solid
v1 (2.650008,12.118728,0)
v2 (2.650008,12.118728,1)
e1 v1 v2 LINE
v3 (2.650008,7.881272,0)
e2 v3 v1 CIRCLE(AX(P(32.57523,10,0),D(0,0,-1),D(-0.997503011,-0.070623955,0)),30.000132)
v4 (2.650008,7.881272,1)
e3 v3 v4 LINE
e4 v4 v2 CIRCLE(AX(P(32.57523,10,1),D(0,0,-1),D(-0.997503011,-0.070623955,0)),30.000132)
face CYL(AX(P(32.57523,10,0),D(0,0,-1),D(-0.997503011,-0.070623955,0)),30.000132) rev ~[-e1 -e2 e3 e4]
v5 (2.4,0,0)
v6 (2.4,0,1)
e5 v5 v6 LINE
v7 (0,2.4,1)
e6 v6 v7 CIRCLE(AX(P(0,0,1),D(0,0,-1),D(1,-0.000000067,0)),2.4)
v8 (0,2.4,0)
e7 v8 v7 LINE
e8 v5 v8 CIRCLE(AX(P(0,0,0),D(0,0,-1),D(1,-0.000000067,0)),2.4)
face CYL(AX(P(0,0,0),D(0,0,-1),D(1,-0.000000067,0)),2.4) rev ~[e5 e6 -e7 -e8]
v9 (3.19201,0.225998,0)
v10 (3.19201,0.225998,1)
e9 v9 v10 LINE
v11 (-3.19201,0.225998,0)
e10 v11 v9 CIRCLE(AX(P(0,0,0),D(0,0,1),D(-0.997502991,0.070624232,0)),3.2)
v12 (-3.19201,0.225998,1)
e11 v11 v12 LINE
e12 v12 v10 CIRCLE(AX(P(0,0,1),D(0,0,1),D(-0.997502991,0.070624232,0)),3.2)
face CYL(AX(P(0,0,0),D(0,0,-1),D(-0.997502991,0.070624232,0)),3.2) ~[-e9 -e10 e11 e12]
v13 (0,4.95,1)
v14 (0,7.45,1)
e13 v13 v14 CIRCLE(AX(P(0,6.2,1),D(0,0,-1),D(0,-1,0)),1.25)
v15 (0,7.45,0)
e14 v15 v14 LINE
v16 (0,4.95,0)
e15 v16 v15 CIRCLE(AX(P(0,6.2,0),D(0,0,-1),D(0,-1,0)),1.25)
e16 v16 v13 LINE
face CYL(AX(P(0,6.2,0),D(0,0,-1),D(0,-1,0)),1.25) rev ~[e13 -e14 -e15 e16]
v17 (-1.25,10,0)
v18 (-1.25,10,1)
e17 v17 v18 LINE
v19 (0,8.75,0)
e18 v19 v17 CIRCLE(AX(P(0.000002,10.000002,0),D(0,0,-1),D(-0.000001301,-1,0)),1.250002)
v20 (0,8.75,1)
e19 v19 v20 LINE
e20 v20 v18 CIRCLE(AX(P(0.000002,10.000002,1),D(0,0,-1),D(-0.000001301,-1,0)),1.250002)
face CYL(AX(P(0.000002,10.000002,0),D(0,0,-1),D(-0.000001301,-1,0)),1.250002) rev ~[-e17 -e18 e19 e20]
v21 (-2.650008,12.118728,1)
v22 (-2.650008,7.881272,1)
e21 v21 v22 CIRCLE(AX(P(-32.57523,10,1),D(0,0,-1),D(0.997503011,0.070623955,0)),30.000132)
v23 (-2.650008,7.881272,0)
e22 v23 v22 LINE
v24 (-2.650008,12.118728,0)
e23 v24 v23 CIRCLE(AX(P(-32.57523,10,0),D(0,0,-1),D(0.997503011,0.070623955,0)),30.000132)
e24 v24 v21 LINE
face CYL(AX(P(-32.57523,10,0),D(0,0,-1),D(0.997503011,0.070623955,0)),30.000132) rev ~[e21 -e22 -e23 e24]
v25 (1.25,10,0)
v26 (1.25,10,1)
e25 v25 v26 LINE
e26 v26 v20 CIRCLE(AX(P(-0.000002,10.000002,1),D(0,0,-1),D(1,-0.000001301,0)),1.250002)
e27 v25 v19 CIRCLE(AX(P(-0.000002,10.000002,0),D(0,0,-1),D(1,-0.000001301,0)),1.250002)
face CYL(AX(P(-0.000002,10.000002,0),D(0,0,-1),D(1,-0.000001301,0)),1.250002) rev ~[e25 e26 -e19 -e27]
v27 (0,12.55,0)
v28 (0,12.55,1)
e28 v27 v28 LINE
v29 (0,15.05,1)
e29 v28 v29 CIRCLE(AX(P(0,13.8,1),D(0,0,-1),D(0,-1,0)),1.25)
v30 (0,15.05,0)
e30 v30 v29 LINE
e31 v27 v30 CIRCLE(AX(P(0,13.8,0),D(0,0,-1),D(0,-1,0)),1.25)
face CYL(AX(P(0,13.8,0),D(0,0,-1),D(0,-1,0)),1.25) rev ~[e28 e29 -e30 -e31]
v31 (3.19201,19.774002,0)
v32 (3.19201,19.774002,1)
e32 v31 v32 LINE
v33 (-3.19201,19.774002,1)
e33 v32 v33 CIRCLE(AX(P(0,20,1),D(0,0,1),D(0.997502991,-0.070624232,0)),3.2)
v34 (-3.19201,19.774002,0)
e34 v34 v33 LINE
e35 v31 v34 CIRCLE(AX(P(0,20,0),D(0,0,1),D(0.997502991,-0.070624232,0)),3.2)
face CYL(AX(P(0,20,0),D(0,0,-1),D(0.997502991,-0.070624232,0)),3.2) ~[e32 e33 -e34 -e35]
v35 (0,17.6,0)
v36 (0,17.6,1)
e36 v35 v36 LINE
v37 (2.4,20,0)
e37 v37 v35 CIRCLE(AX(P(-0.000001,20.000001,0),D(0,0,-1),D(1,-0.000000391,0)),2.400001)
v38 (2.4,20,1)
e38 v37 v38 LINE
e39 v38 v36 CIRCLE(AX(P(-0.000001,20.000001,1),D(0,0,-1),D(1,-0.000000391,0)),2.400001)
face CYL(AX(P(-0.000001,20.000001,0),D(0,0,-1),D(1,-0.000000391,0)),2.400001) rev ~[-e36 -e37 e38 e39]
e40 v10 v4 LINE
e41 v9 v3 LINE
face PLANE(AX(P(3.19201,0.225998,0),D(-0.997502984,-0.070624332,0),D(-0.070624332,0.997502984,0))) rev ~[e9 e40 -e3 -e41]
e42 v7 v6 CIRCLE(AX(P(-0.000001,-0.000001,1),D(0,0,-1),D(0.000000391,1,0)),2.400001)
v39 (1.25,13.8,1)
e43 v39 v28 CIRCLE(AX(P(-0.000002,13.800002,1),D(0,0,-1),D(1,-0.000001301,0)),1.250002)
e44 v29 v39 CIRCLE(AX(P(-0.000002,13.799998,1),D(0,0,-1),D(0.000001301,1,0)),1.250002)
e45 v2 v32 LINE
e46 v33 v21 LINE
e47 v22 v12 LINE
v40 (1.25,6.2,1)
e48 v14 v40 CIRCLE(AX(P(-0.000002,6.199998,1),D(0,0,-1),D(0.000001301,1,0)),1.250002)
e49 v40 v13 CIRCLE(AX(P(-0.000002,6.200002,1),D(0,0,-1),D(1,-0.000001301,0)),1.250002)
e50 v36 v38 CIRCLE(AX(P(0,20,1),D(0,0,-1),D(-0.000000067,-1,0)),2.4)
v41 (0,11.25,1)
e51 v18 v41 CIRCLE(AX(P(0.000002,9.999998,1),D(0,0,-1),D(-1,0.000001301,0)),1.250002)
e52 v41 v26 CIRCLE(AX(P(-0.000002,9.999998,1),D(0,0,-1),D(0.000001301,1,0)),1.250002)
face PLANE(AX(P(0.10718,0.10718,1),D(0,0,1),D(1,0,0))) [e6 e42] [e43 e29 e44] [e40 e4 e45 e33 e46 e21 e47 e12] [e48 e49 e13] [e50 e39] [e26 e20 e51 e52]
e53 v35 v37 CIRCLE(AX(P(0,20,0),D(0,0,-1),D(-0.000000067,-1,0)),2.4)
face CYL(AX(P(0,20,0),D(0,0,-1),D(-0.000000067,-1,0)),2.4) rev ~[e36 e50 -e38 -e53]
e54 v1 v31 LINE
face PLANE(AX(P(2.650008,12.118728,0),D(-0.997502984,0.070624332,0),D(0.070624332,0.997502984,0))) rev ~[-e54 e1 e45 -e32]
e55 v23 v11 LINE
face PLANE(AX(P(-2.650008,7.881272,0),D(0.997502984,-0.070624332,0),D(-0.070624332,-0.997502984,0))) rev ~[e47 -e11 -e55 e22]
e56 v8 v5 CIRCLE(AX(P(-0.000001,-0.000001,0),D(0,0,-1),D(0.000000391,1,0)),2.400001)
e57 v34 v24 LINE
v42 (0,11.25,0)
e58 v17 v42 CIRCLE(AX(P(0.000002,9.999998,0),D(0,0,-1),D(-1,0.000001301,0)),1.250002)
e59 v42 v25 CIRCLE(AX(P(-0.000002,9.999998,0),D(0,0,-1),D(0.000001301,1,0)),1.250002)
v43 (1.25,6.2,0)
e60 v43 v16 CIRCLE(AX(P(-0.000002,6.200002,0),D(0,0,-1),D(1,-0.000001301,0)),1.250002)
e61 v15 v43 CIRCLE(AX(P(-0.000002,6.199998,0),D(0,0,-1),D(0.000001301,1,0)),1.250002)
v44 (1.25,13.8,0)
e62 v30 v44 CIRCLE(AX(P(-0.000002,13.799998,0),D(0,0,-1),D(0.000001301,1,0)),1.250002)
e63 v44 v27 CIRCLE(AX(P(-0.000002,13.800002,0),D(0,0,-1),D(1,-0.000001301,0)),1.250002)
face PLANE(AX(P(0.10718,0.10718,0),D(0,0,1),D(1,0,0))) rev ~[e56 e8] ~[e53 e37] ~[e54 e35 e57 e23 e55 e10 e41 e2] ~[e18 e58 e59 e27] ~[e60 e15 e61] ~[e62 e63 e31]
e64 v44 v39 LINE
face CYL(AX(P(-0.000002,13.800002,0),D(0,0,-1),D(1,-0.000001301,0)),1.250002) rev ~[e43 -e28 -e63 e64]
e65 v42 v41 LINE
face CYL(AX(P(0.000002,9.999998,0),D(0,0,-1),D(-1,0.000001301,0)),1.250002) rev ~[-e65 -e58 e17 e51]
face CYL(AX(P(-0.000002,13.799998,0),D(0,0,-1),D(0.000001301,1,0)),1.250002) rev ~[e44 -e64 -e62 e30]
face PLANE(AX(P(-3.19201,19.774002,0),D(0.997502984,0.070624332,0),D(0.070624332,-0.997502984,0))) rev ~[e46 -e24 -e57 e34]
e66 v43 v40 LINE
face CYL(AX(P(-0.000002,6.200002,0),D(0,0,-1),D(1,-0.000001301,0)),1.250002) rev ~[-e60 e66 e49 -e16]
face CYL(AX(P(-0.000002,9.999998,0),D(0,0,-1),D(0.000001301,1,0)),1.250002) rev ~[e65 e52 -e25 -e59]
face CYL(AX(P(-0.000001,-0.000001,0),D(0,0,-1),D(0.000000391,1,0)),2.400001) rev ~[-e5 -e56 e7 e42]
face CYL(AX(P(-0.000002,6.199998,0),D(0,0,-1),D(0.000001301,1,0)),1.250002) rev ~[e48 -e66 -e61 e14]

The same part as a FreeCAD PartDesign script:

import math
import FreeCAD as App
import Part
import Sketcher
Q = App.Units.Quantity

doc = App.newDocument("Part")
params = doc.addObject("Spreadsheet::Sheet", "Params")
for row, (alias, value) in enumerate([
    ("sketch1_radius", "3.2 mm"),
    ("sketch1_radius2", "2.4 mm"),
    ("sketch1_radius3", "1.250002 mm"),
    ("pad1_length", "1 mm"),
], start=1):
    params.set(f"A{row}", alias)
    params.set(f"B{row}", "=" + value)
    params.setAlias(f"B{row}", alias)

body = doc.addObject("PartDesign::Body", "Body")

# Sketch on XY plane
sketch1 = body.newObject("Sketcher::SketchObject", "Sketch")
sketch1.AttachmentSupport = (doc.getObject("XY_Plane"), [""])
sketch1.MapMode = "FlatFace"
sketch1.addGeometry([
    Part.LineSegment(App.Vector(-2.7, 7.9, 0), App.Vector(-3.2, 0.2, 0)),  # 0
    Part.ArcOfCircle(Part.Circle(App.Vector(0, 0, 0), App.Vector(0, 0, 1), 3.2), math.radians(176), math.radians(364)),  # 1
    Part.LineSegment(App.Vector(3.2, 0.2, 0), App.Vector(2.7, 7.9, 0)),  # 2
    Part.ArcOfCircle(Part.Circle(App.Vector(32.6, 10, 0), App.Vector(0, 0, 1), 30), math.radians(175.95), math.radians(184.05)),  # 3
    Part.LineSegment(App.Vector(2.7, 12.1, 0), App.Vector(3.2, 19.8, 0)),  # 4
    Part.ArcOfCircle(Part.Circle(App.Vector(0, 20, 0), App.Vector(0, 0, 1), 3.2), math.radians(-4), math.radians(184)),  # 5
    Part.LineSegment(App.Vector(-3.2, 19.8, 0), App.Vector(-2.7, 12.1, 0)),  # 6
    Part.ArcOfCircle(Part.Circle(App.Vector(-32.6, 10, 0), App.Vector(0, 0, 1), 30), math.radians(-4.05), math.radians(4.05)),  # 7
    Part.ArcOfCircle(Part.Circle(App.Vector(0, 6.2, 0), App.Vector(0, 0, 1), 1.3), math.radians(0), math.radians(90)),  # 8
    Part.ArcOfCircle(Part.Circle(App.Vector(0, 6.2, 0), App.Vector(0, 0, 1), 1.3), math.radians(-90), math.radians(0)),  # 9
    Part.ArcOfCircle(Part.Circle(App.Vector(0, 6.2, 0), App.Vector(0, 0, 1), 1.2), math.radians(90), math.radians(270)),  # 10
    Part.ArcOfCircle(Part.Circle(App.Vector(0, 0, 0), App.Vector(0, 0, 1), 2.4), math.radians(90), math.radians(360)),  # 11
    Part.ArcOfCircle(Part.Circle(App.Vector(0, 0, 0), App.Vector(0, 0, 1), 2.4), math.radians(0), math.radians(90)),  # 12
    Part.ArcOfCircle(Part.Circle(App.Vector(0, 10, 0), App.Vector(0, 0, 1), 1.3), math.radians(0), math.radians(90)),  # 13
    Part.ArcOfCircle(Part.Circle(App.Vector(0, 10, 0), App.Vector(0, 0, 1), 1.3), math.radians(-90), math.radians(0)),  # 14
    Part.ArcOfCircle(Part.Circle(App.Vector(0, 10, 0), App.Vector(0, 0, 1), 1.3), math.radians(-180), math.radians(-90)),  # 15
    Part.ArcOfCircle(Part.Circle(App.Vector(0, 10, 0), App.Vector(0, 0, 1), 1.3), math.radians(90), math.radians(180)),  # 16
    Part.ArcOfCircle(Part.Circle(App.Vector(0, 13.8, 0), App.Vector(0, 0, 1), 1.3), math.radians(0), math.radians(90)),  # 17
    Part.ArcOfCircle(Part.Circle(App.Vector(0, 13.8, 0), App.Vector(0, 0, 1), 1.3), math.radians(-90), math.radians(0)),  # 18
    Part.ArcOfCircle(Part.Circle(App.Vector(0, 13.8, 0), App.Vector(0, 0, 1), 1.2), math.radians(90), math.radians(270)),  # 19
    Part.ArcOfCircle(Part.Circle(App.Vector(0, 20, 0), App.Vector(0, 0, 1), 2.4), math.radians(0), math.radians(270)),  # 20
    Part.ArcOfCircle(Part.Circle(App.Vector(0, 20, 0), App.Vector(0, 0, 1), 2.4), math.radians(-90), math.radians(0)),  # 21
], False)
sketch1.addConstraint([
    Sketcher.Constraint("Tangent", 0, 2, 1, 1),
    Sketcher.Constraint("Tangent", 1, 2, 2, 1),
    Sketcher.Constraint("Tangent", 2, 2, 3, 2),
    Sketcher.Constraint("Tangent", 3, 1, 4, 1),
    Sketcher.Constraint("Tangent", 4, 2, 5, 1),
    Sketcher.Constraint("Tangent", 5, 2, 6, 1),
    Sketcher.Constraint("Tangent", 6, 2, 7, 2),
    Sketcher.Constraint("Tangent", 7, 1, 0, 1),
    Sketcher.Constraint("Coincident", 8, 1, 9, 2),
    Sketcher.Constraint("Tangent", 9, 1, 10, 2),
    Sketcher.Constraint("Tangent", 10, 1, 8, 2),
    Sketcher.Constraint("Tangent", 11, 1, 12, 2),
    Sketcher.Constraint("Coincident", 12, 1, 11, 2),
    Sketcher.Constraint("Coincident", 13, 1, 14, 2),
    Sketcher.Constraint("Coincident", 14, 1, 15, 2),
    Sketcher.Constraint("Coincident", 15, 1, 16, 2),
    Sketcher.Constraint("Coincident", 16, 1, 13, 2),
    Sketcher.Constraint("Coincident", 17, 1, 18, 2),
    Sketcher.Constraint("Tangent", 18, 1, 19, 2),
    Sketcher.Constraint("Tangent", 19, 1, 17, 2),
    Sketcher.Constraint("Tangent", 20, 1, 21, 2),
    Sketcher.Constraint("Coincident", 21, 1, 20, 2),
    Sketcher.Constraint("Coincident", 1, 3, -1, 1),
    Sketcher.Constraint("Coincident", 11, 3, -1, 1),
    Sketcher.Constraint("Coincident", 14, 3, 13, 3),
    Sketcher.Constraint("Coincident", 15, 3, 13, 3),
    Sketcher.Constraint("Coincident", 20, 3, 5, 3),
    Sketcher.Constraint("Equal", 1, 5),
    Sketcher.Constraint("Equal", 3, 7),
    Sketcher.Constraint("Equal", 9, 10),
    Sketcher.Constraint("Equal", 10, 13),
    Sketcher.Constraint("Equal", 15, 16),
    Sketcher.Constraint("Equal", 16, 17),
    Sketcher.Constraint("Equal", 18, 19),
    Sketcher.Constraint("Equal", 12, 20),
    Sketcher.Constraint("Symmetric", 3, 3, 7, 3, -2),
    Sketcher.Constraint("Symmetric", 13, 1, 15, 1, -2),
    Sketcher.Constraint("PointOnObject", 5, 3, -2),
    Sketcher.Constraint("PointOnObject", 8, 3, -2),
    Sketcher.Constraint("PointOnObject", 17, 3, -2),
    Sketcher.Constraint("PointOnObject", 9, 1, -2),
    Sketcher.Constraint("PointOnObject", 10, 1, -2),
    Sketcher.Constraint("PointOnObject", 11, 1, -2),
    Sketcher.Constraint("PointOnObject", 12, 1, -1),
    Sketcher.Constraint("PointOnObject", 14, 1, -2),
    Sketcher.Constraint("PointOnObject", 16, 1, -2),
    Sketcher.Constraint("PointOnObject", 18, 1, -2),
    Sketcher.Constraint("PointOnObject", 19, 1, -2),
    Sketcher.Constraint("PointOnObject", 21, 1, -2),
    Sketcher.Constraint("Parallel", 0, 4),
    Sketcher.Constraint("Horizontal", 7, 3, 13, 3),
    Sketcher.Constraint("Horizontal", 10, 3, 8, 1),
    Sketcher.Constraint("Horizontal", 16, 3, 13, 1),
    Sketcher.Constraint("Horizontal", 19, 3, 17, 1),
    Sketcher.Constraint("Horizontal", 21, 3, 20, 1),
    Sketcher.Constraint("Radius", 1, Q("3.2 mm")),
    Sketcher.Constraint("Radius", 11, Q("2.4 mm")),
    Sketcher.Constraint("Radius", 8, Q("1.250002 mm")),
    Sketcher.Constraint("DistanceY", -1, 1, 3, 3, Q("10 mm")),
    Sketcher.Constraint("DistanceY", -1, 1, 8, 3, Q("6.199998 mm")),
    Sketcher.Constraint("DistanceY", -1, 1, 17, 3, Q("13.799998 mm")),
    Sketcher.Constraint("DistanceY", -1, 1, 1, 2, Q("0.225998 mm")),
    Sketcher.Constraint("Radius", 3, Q("30.000132 mm")),
])
sketch1.setExpression("Constraints[55]", "Params.sketch1_radius")
sketch1.setExpression("Constraints[56]", "Params.sketch1_radius2")
sketch1.setExpression("Constraints[57]", "Params.sketch1_radius3")
pad1 = body.newObject("PartDesign::Pad", "Pad")
pad1.Profile = sketch1
pad1.setExpression("Length", "Params.pad1_length")

doc.recompute()
